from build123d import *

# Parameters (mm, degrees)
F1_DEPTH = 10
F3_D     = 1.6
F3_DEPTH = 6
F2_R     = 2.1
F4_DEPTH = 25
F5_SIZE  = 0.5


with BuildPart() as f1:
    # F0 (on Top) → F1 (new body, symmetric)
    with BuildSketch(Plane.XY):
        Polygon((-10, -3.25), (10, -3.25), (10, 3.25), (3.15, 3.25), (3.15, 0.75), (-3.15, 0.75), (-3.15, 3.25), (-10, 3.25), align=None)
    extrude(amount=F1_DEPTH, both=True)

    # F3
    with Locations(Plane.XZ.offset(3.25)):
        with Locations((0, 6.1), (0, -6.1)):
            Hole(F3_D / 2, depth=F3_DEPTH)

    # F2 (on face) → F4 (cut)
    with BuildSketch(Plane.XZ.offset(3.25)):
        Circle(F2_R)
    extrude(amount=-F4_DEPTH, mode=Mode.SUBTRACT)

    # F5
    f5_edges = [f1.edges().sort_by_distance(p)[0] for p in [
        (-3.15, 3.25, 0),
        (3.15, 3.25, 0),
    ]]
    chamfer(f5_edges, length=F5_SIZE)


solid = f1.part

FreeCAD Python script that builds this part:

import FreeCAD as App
import Part
import Sketcher
from FreeCAD import Vector


def edges_at(feature, points):
    """Names of the edges that pass closest to the given points."""
    edges = feature.Shape.Edges
    near = lambda p: min(range(len(edges)), key=lambda i: edges[i].distToShape(Part.Vertex(*p))[0])
    return sorted({f"Edge{near(p) + 1}" for p in points})

doc = App.newDocument("Part")
body = doc.addObject("PartDesign::Body", "Body")

sketch1 = body.newObject("Sketcher::SketchObject", "Sketch")
sketch1.AttachmentSupport = (doc.getObject("XY_Plane"), [""])
sketch1.MapMode = "FlatFace"
sketch1.addGeometry([
    Part.LineSegment(Vector(-10, -3.2, 0), Vector(10, -3.2, 0)),
    Part.LineSegment(Vector(10, -3.2, 0), Vector(10, 3.2, 0)),
    Part.LineSegment(Vector(10, 3.2, 0), Vector(3.1, 3.2, 0)),
    Part.LineSegment(Vector(3.1, 3.2, 0), Vector(3.1, 0.8, 0)),
    Part.LineSegment(Vector(3.1, 0.8, 0), Vector(-3.1, 0.8, 0)),
    Part.LineSegment(Vector(-3.1, 0.8, 0), Vector(-3.1, 3.2, 0)),
    Part.LineSegment(Vector(-3.1, 3.2, 0), Vector(-10, 3.2, 0)),
    Part.LineSegment(Vector(-10, 3.2, 0), Vector(-10, -3.2, 0)),
], False)
sketch1.addConstraint([
    Sketcher.Constraint("Coincident", 0, 2, 1, 1),
    Sketcher.Constraint("Coincident", 1, 2, 2, 1),
    Sketcher.Constraint("Coincident", 2, 2, 3, 1),
    Sketcher.Constraint("Coincident", 3, 2, 4, 1),
    Sketcher.Constraint("Coincident", 4, 2, 5, 1),
    Sketcher.Constraint("Coincident", 5, 2, 6, 1),
    Sketcher.Constraint("Coincident", 6, 2, 7, 1),
    Sketcher.Constraint("Coincident", 7, 2, 0, 1),
    Sketcher.Constraint("Horizontal", 0),
    Sketcher.Constraint("Vertical", 1),
    Sketcher.Constraint("Horizontal", 2),
    Sketcher.Constraint("Vertical", 3),
    Sketcher.Constraint("Horizontal", 4),
    Sketcher.Constraint("Vertical", 5),
    Sketcher.Constraint("Horizontal", 6),
    Sketcher.Constraint("Vertical", 7),
    Sketcher.Constraint("Symmetric", 0, 2, 6, 2, -1, 1),
    Sketcher.Constraint("Symmetric", 2, 2, 5, 2, -2),
    Sketcher.Constraint("DistanceX", 0, 1, 0, 2, 20.0),
    Sketcher.Constraint("DistanceX", 4, 2, 4, 1, 6.3),
    Sketcher.Constraint("DistanceY", 1, 1, 1, 2, 6.5),
    Sketcher.Constraint("DistanceY", 3, 2, 3, 1, 2.5),
])
pad1 = body.newObject("PartDesign::Pad", "Pad")
pad1.Profile = sketch1
pad1.Length = 20
pad1.Midplane = True

sketch2 = body.newObject("Sketcher::SketchObject", "Sketch001")
sketch2.AttachmentSupport = (doc.getObject("XZ_Plane"), [""])
sketch2.MapMode = "FlatFace"
sketch2.AttachmentOffset = App.Placement(Vector(0, 0, 3.25), App.Rotation())
sketch2.addGeometry([
    Part.Circle(Vector(0, 6.1, 0), Vector(0, 0, 1), 0.8),
    Part.Circle(Vector(0, -6.1, 0), Vector(0, 0, 1), 0.8),
], False)
sketch2.addConstraint([
    Sketcher.Constraint("Equal", 0, 1),
    Sketcher.Constraint("Symmetric", 0, 3, 1, 3, -1, 1),
    Sketcher.Constraint("PointOnObject", 0, 3, -2),
    Sketcher.Constraint("Diameter", 0, 1.6),
    Sketcher.Constraint("DistanceY", -1, 1, 0, 3, 6.1),
])
doc.recompute()
hole = body.newObject("PartDesign::Hole", "Hole")
hole.Profile = sketch2
hole.ThreadType = "None"
hole.Diameter = 1.6
hole.DepthType = "Dimension"
hole.Depth = 6
hole.DrillPoint = "Flat"

sketch3 = body.newObject("Sketcher::SketchObject", "Sketch002")
sketch3.AttachmentSupport = (doc.getObject("XZ_Plane"), [""])
sketch3.MapMode = "FlatFace"
sketch3.AttachmentOffset = App.Placement(Vector(0, 0, 3.25), App.Rotation())
sketch3.addGeometry(Part.Circle(Vector(0, 0, 0), Vector(0, 0, 1), 2.1), False)
sketch3.addConstraint([
    Sketcher.Constraint("Coincident", 0, 3, -1, 1),
    Sketcher.Constraint("Diameter", 0, 4.2),
])
pocket1 = body.newObject("PartDesign::Pocket", "Pocket")
pocket1.Profile = sketch3
pocket1.Length = 25
doc.recompute()

chamfer = body.newObject("PartDesign::Chamfer", "Chamfer")
chamfer.Base = (pocket1, edges_at(pocket1, [(-3.15, 3.25, 0), (3.15, 3.25, 0)]))
chamfer.Size = 0.5

doc.recompute()
